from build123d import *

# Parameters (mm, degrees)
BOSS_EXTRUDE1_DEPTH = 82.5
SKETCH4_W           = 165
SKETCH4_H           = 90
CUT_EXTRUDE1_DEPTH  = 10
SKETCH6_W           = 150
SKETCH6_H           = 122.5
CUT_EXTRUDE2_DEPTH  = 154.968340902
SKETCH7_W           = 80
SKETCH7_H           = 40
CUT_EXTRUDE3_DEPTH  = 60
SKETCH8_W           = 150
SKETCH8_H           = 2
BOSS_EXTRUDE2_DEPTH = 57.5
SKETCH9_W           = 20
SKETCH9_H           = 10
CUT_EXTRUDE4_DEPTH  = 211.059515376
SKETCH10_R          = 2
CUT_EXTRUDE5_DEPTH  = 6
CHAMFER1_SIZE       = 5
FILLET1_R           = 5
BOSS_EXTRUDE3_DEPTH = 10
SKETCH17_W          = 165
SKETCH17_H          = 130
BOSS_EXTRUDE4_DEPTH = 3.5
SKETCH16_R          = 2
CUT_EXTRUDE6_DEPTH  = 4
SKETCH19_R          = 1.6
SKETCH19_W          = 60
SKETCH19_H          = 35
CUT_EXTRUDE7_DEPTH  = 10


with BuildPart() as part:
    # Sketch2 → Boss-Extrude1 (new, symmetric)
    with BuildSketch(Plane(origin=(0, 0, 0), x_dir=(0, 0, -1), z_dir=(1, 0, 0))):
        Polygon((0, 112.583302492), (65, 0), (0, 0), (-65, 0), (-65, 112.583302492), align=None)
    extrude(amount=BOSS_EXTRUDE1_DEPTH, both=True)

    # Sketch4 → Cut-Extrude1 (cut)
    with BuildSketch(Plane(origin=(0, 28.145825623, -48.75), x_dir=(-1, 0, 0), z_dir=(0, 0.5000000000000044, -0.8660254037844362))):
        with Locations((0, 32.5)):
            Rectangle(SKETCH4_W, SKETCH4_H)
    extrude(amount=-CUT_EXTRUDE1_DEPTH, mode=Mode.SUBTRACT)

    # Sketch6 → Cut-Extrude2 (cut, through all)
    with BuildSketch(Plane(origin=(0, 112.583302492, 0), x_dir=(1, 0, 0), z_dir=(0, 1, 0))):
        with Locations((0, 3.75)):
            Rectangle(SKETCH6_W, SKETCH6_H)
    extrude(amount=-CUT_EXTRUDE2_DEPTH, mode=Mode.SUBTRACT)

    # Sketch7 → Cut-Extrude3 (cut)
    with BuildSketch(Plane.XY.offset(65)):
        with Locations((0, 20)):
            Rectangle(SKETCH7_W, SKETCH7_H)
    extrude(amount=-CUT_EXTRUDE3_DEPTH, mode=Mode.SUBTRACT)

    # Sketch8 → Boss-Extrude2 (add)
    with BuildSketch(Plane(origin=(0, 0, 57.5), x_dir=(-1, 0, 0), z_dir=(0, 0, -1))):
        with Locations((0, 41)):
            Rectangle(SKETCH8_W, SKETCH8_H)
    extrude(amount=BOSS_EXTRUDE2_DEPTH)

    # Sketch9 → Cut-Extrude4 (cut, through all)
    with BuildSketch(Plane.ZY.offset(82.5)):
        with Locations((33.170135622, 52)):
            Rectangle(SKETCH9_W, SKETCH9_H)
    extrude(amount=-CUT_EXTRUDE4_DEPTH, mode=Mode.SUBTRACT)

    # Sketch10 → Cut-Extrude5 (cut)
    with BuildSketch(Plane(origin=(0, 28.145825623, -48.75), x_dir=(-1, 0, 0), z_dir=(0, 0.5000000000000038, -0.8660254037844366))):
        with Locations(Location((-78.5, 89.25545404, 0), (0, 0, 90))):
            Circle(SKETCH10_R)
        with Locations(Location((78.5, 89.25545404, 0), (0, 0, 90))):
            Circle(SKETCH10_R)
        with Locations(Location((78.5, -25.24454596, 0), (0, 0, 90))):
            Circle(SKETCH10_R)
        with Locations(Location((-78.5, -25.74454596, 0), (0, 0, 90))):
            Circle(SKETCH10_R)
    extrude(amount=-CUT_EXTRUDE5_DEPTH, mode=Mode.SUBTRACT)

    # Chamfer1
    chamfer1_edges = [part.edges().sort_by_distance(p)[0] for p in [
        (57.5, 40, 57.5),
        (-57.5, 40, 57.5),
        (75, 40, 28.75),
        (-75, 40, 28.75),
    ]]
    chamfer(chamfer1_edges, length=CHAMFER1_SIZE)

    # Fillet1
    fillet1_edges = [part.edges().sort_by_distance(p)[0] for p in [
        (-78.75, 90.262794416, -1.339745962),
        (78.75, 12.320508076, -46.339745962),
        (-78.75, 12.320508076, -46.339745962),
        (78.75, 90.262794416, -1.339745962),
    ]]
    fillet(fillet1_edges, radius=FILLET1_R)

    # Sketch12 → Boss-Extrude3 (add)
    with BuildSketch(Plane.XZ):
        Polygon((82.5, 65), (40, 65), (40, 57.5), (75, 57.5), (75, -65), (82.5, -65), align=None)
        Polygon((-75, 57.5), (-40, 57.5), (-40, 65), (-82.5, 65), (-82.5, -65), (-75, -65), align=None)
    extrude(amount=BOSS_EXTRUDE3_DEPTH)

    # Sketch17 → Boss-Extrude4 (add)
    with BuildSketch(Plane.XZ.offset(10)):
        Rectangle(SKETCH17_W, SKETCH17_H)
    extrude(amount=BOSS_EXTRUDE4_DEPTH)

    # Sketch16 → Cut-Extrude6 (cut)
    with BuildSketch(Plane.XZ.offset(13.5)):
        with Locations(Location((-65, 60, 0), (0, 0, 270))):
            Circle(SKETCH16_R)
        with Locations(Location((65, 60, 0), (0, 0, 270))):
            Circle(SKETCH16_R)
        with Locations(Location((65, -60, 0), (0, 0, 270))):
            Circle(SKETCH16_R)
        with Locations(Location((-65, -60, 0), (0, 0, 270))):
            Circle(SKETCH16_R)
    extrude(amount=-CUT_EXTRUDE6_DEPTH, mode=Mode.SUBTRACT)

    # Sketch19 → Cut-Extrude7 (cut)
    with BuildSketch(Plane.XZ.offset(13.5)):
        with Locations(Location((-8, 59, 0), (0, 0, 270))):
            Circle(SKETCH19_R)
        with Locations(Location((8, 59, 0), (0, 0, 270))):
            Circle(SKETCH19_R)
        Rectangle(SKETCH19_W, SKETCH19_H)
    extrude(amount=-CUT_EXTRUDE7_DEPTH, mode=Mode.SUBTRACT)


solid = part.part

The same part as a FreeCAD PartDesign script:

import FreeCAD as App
import Part
import Sketcher

V = App.Vector
Q = App.Units.Quantity


def edges_at(feature, points):
    """Names of the edges that pass closest to the given points."""
    edges = feature.Shape.Edges
    near = lambda p: min(range(len(edges)), key=lambda i: edges[i].distToShape(Part.Vertex(*p))[0])
    return sorted({f"Edge{near(p) + 1}" for p in points})


def add_polygon(sketch, points):
    """Adds a closed chain of lines whose ends are joined by coincident constraints."""
    first, n = sketch.GeometryCount, len(points)
    for a, b in zip(points, points[1:] + points[:1]):
        sketch.addGeometry(Part.LineSegment(App.Vector(*a, 0), App.Vector(*b, 0)), False)
    for i in range(n):
        sketch.addConstraint(Sketcher.Constraint("Coincident", first + i, 2, first + (i + 1) % n, 1))

doc = App.newDocument("Part")
body = doc.addObject("PartDesign::Body", "Body")

sketch1 = body.newObject("Sketcher::SketchObject", "Sketch")
sketch1.AttachmentSupport = (doc.getObject("YZ_Plane"), [""])
sketch1.MapMode = "FlatFace"
add_polygon(sketch1, [(0, -65), (113, 0), (113, 65), (0, 65)])
sketch1.addConstraint([
    Sketcher.Constraint("Vertical", 1),
    Sketcher.Constraint("Horizontal", 2),
    Sketcher.Constraint("Vertical", 3),
    Sketcher.Constraint("Symmetric", 2, 2, 3, 2, -1, 1),
    Sketcher.Constraint("PointOnObject", 0, 2, -1),
    Sketcher.Constraint("DistanceY", 1, 1, 1, 2, 65.0),
    Sketcher.Constraint("Angle", 0, Q("30 deg")),
])
pad1 = body.newObject("PartDesign::Pad", "Pad")
pad1.Profile = sketch1
pad1.Length = 165
pad1.Midplane = True

sketch2 = body.newObject("Sketcher::SketchObject", "Sketch001")
sketch2.Placement = App.Placement(V(0, 28.145826, -48.75), App.Rotation(V(-1, 0, 0), V(0, 0.866025404, 0.5), V(0, 0.5, -0.866025404), "ZXY"))
add_polygon(sketch2, [(-82, 78), (-82, -13), (82, -13), (82, 78)])
sketch2.addConstraint([
    Sketcher.Constraint("Vertical", 0),
    Sketcher.Constraint("Horizontal", 1),
    Sketcher.Constraint("Vertical", 2),
    Sketcher.Constraint("Horizontal", 3),
    Sketcher.Constraint("DistanceX", 1, 1, 1, 2, 165.0),
    Sketcher.Constraint("DistanceY", 0, 2, 0, 1, 90.0),
    Sketcher.Constraint("DistanceX", 0, 2, -1, 1, 82.5),
    Sketcher.Constraint("DistanceY", 0, 2, -1, 1, 12.5),
])
pocket1 = body.newObject("PartDesign::Pocket", "Pocket")
pocket1.Profile = sketch2
pocket1.Length = 10

sketch3 = body.newObject("Sketcher::SketchObject", "Sketch002")
sketch3.AttachmentSupport = (doc.getObject("XZ_Plane"), [""])
sketch3.MapMode = "FlatFace"
sketch3.AttachmentOffset = App.Placement(V(0, 0, -112.583302), App.Rotation())
add_polygon(sketch3, [(-75, -65), (-75, 58), (75, 58), (75, -65)])
sketch3.addConstraint([
    Sketcher.Constraint("Vertical", 0),
    Sketcher.Constraint("Horizontal", 1),
    Sketcher.Constraint("Vertical", 2),
    Sketcher.Constraint("Horizontal", 3),
    Sketcher.Constraint("DistanceX", 1, 1, 1, 2, 150.0),
    Sketcher.Constraint("DistanceY", 0, 1, 0, 2, 122.5),
    Sketcher.Constraint("DistanceX", 0, 2, -1, 1, 75.0),
    Sketcher.Constraint("DistanceY", 2, 2, -1, 1, 65.0),
])
pocket2 = body.newObject("PartDesign::Pocket", "Pocket001")
pocket2.Profile = sketch3
pocket2.Type = "ThroughAll"
pocket2.Reversed = True

sketch4 = body.newObject("Sketcher::SketchObject", "Sketch003")
sketch4.AttachmentSupport = (doc.getObject("XY_Plane"), [""])
sketch4.MapMode = "FlatFace"
sketch4.AttachmentOffset = App.Placement(V(0, 0, 65), App.Rotation())
add_polygon(sketch4, [(-40, 40), (-40, 0), (40, 0), (40, 40)])
sketch4.addConstraint([
    Sketcher.Constraint("Vertical", 0),
    Sketcher.Constraint("Horizontal", 1),
    Sketcher.Constraint("Vertical", 2),
    Sketcher.Constraint("Horizontal", 3),
    Sketcher.Constraint("Symmetric", 0, 2, 1, 2, -1, 1),
    Sketcher.Constraint("DistanceX", 1, 1, 1, 2, 80.0),
    Sketcher.Constraint("DistanceY", 0, 2, 0, 1, 40.0),
])
pocket3 = body.newObject("PartDesign::Pocket", "Pocket002")
pocket3.Profile = sketch4
pocket3.Length = 60

sketch5 = body.newObject("Sketcher::SketchObject", "Sketch004")
sketch5.AttachmentSupport = (doc.getObject("XY_Plane"), [""])
sketch5.MapMode = "FlatFace"
sketch5.AttachmentOffset = App.Placement(V(0, 0, 57.5), App.Rotation())
add_polygon(sketch5, [(75, 42), (75, 40), (-75, 40), (-75, 42)])
sketch5.addConstraint([
    Sketcher.Constraint("Vertical", 0),
    Sketcher.Constraint("Horizontal", 1),
    Sketcher.Constraint("Vertical", 2),
    Sketcher.Constraint("Horizontal", 3),
    Sketcher.Constraint("DistanceX", 1, 2, 1, 1, 150.0),
    Sketcher.Constraint("DistanceY", 0, 2, 0, 1, 2.0),
    Sketcher.Constraint("DistanceX", -1, 1, 0, 2, 75.0),
    Sketcher.Constraint("DistanceY", -1, 1, 0, 2, 40.0),
])
pad2 = body.newObject("PartDesign::Pad", "Pad001")
pad2.Profile = sketch5
pad2.Length = 57.5
pad2.Reversed = True

sketch6 = body.newObject("Sketcher::SketchObject", "Sketch005")
sketch6.AttachmentSupport = (doc.getObject("YZ_Plane"), [""])
sketch6.MapMode = "FlatFace"
sketch6.AttachmentOffset = App.Placement(V(0, 0, -82.5), App.Rotation())
add_polygon(sketch6, [(57, 23), (47, 23), (47, 43), (57, 43)])
sketch6.addConstraint([
    Sketcher.Constraint("Horizontal", 0),
    Sketcher.Constraint("Vertical", 1),
    Sketcher.Constraint("Horizontal", 2),
    Sketcher.Constraint("Vertical", 3),
    Sketcher.Constraint("DistanceX", 0, 2, 0, 1, 10.0),
    Sketcher.Constraint("DistanceY", 1, 1, 1, 2, 20.0),
    Sketcher.Constraint("DistanceX", -1, 1, 0, 2, 47.0),
    Sketcher.Constraint("DistanceY", -1, 1, 0, 2, 23.170136),
])
pocket4 = body.newObject("PartDesign::Pocket", "Pocket003")
pocket4.Profile = sketch6
pocket4.Type = "ThroughAll"
pocket4.Reversed = True

sketch7 = body.newObject("Sketcher::SketchObject", "Sketch006")
sketch7.Placement = App.Placement(V(0, 28.145826, -48.75), App.Rotation(V(-1, 0, 0), V(0, 0.866025404, 0.5), V(0, 0.5, -0.866025404), "ZXY"))
sketch7.addGeometry([
    Part.Circle(V(-78.5, 89.3, 0), V(0, 0, 1), 2),
    Part.Circle(V(78.5, 89.3, 0), V(0, 0, 1), 2),
    Part.Circle(V(78.5, -25.2, 0), V(0, 0, 1), 2),
    Part.Circle(V(-78.5, -25.7, 0), V(0, 0, 1), 2),
], False)
sketch7.addConstraint([
    Sketcher.Constraint("Equal", 0, 1),
    Sketcher.Constraint("Equal", 1, 2),
    Sketcher.Constraint("Equal", 2, 3),
    Sketcher.Constraint("Symmetric", 0, 3, 1, 3, -2),
    Sketcher.Constraint("Vertical", 1, 3, 2, 3),
    Sketcher.Constraint("Vertical", 0, 3, 3, 3),
    Sketcher.Constraint("Diameter", 0, 4.0),
    Sketcher.Constraint("DistanceX", 0, 3, 1, 3, 157.0),
    Sketcher.Constraint("DistanceY", 3, 3, 0, 3, 115.0),
    Sketcher.Constraint("DistanceY", 2, 3, 1, 3, 114.5),
    Sketcher.Constraint("DistanceY", -1, 1, 0, 3, 89.255454),
])
pocket5 = body.newObject("PartDesign::Pocket", "Pocket004")
pocket5.Profile = sketch7
pocket5.Length = 6
doc.recompute()

chamfer = body.newObject("PartDesign::Chamfer", "Chamfer")
chamfer.Base = (pocket5, edges_at(pocket5, [
    (57.5, 40, 57.5),
    (-57.5, 40, 57.5),
    (75, 40, 28.75),
    (-75, 40, 28.75),
]))
chamfer.Size = 5
doc.recompute()

fillet = body.newObject("PartDesign::Fillet", "Fillet")
fillet.Base = (chamfer, edges_at(chamfer, [
    (-78.75, 90.263, -1.34),
    (78.75, 12.321, -46.34),
    (-78.75, 12.321, -46.34),
    (78.75, 90.263, -1.34),
]))
fillet.Radius = 5

sketch8 = body.newObject("Sketcher::SketchObject", "Sketch007")
sketch8.AttachmentSupport = (doc.getObject("XZ_Plane"), [""])
sketch8.MapMode = "FlatFace"
add_polygon(sketch8, [(82, 65), (40, 65), (40, 58), (75, 58), (75, -65), (82, -65)])
add_polygon(sketch8, [(-75, 58), (-40, 58), (-40, 65), (-82, 65), (-82, -65), (-75, -65)])
sketch8.addConstraint([
    Sketcher.Constraint("Horizontal", 0),
    Sketcher.Constraint("Vertical", 1),
    Sketcher.Constraint("Horizontal", 2),
    Sketcher.Constraint("Vertical", 3),
    Sketcher.Constraint("Horizontal", 4),
    Sketcher.Constraint("Vertical", 5),
    Sketcher.Constraint("Horizontal", 6),
    Sketcher.Constraint("Vertical", 7),
    Sketcher.Constraint("Horizontal", 8),
    Sketcher.Constraint("Vertical", 9),
    Sketcher.Constraint("Horizontal", 10),
    Sketcher.Constraint("Vertical", 11),
    Sketcher.Constraint("Symmetric", 4, 2, 8, 2, -1, 1),
    Sketcher.Constraint("Symmetric", 1, 2, 6, 2, -2),
    Sketcher.Constraint("Symmetric", 3, 2, 10, 2, -2),
    Sketcher.Constraint("Horizontal", 5, 2, 7, 2),
    Sketcher.Constraint("Equal", 10, 1),
    Sketcher.Constraint("DistanceX", 2, 1, 2, 2, 35.0),
    Sketcher.Constraint("DistanceY", 5, 1, 5, 2, 130.0),
    Sketcher.Constraint("DistanceX", 0, 2, 0, 1, 42.5),
    Sketcher.Constraint("DistanceX", -1, 1, 0, 2, 40.0),
])
pad3 = body.newObject("PartDesign::Pad", "Pad002")
pad3.Profile = sketch8
pad3.Length = 10

sketch9 = body.newObject("Sketcher::SketchObject", "Sketch008")
sketch9.AttachmentSupport = (doc.getObject("XZ_Plane"), [""])
sketch9.MapMode = "FlatFace"
sketch9.AttachmentOffset = App.Placement(V(0, 0, 10), App.Rotation())
add_polygon(sketch9, [(-82, 65), (-82, -65), (82, -65), (82, 65)])
sketch9.addConstraint([
    Sketcher.Constraint("Vertical", 0),
    Sketcher.Constraint("Horizontal", 1),
    Sketcher.Constraint("Vertical", 2),
    Sketcher.Constraint("Horizontal", 3),
    Sketcher.Constraint("Symmetric", 0, 2, 2, 2, -1, 1),
    Sketcher.Constraint("DistanceX", 1, 1, 1, 2, 165.0),
    Sketcher.Constraint("DistanceY", 0, 2, 0, 1, 130.0),
])
pad4 = body.newObject("PartDesign::Pad", "Pad003")
pad4.Profile = sketch9
pad4.Length = 3.5

sketch10 = body.newObject("Sketcher::SketchObject", "Sketch009")
sketch10.AttachmentSupport = (doc.getObject("XZ_Plane"), [""])
sketch10.MapMode = "FlatFace"
sketch10.AttachmentOffset = App.Placement(V(0, 0, 13.5), App.Rotation())
sketch10.addGeometry([
    Part.Circle(V(-65, 60, 0), V(0, 0, 1), 2),
    Part.Circle(V(65, 60, 0), V(0, 0, 1), 2),
    Part.Circle(V(65, -60, 0), V(0, 0, 1), 2),
    Part.Circle(V(-65, -60, 0), V(0, 0, 1), 2),
], False)
sketch10.addConstraint([
    Sketcher.Constraint("Equal", 0, 1),
    Sketcher.Constraint("Equal", 1, 2),
    Sketcher.Constraint("Equal", 2, 3),
    Sketcher.Constraint("Symmetric", 0, 3, 2, 3, -1, 1),
    Sketcher.Constraint("Symmetric", 1, 3, 3, 3, -1, 1),
    Sketcher.Constraint("Symmetric", 0, 3, 1, 3, -2),
    Sketcher.Constraint("Diameter", 0, 4.0),
    Sketcher.Constraint("DistanceX", 0, 3, -1, 1, 65.0),
    Sketcher.Constraint("DistanceY", -1, 1, 0, 3, 60.0),
])
pocket6 = body.newObject("PartDesign::Pocket", "Pocket005")
pocket6.Profile = sketch10
pocket6.Length = 4

sketch11 = body.newObject("Sketcher::SketchObject", "Sketch010")
sketch11.AttachmentSupport = (doc.getObject("XZ_Plane"), [""])
sketch11.MapMode = "FlatFace"
sketch11.AttachmentOffset = App.Placement(V(0, 0, 13.5), App.Rotation())
sketch11.addGeometry(Part.Circle(V(-8, 59, 0), V(0, 0, 1), 1.6), False)
sketch11.addGeometry(Part.Circle(V(8, 59, 0), V(0, 0, 1), 1.6), False)
add_polygon(sketch11, [(-30, 17.5), (-30, -17.5), (30, -17.5), (30, 17.5)])
sketch11.addConstraint([
    Sketcher.Constraint("Vertical", 2),
    Sketcher.Constraint("Horizontal", 3),
    Sketcher.Constraint("Vertical", 4),
    Sketcher.Constraint("Horizontal", 5),
    Sketcher.Constraint("Equal", 0, 1),
    Sketcher.Constraint("Symmetric", 2, 2, 4, 2, -1, 1),
    Sketcher.Constraint("Symmetric", 0, 3, 1, 3, -2),
    Sketcher.Constraint("Diameter", 0, 3.2),
    Sketcher.Constraint("DistanceX", 3, 1, 3, 2, 60.0),
    Sketcher.Constraint("DistanceY", 2, 2, 2, 1, 35.0),
    Sketcher.Constraint("DistanceX", 0, 3, -1, 1, 8.0),
    Sketcher.Constraint("DistanceY", -1, 1, 0, 3, 59.0),
])
pocket7 = body.newObject("PartDesign::Pocket", "Pocket006")
pocket7.Profile = sketch11
pocket7.Length = 10

doc.recompute()
